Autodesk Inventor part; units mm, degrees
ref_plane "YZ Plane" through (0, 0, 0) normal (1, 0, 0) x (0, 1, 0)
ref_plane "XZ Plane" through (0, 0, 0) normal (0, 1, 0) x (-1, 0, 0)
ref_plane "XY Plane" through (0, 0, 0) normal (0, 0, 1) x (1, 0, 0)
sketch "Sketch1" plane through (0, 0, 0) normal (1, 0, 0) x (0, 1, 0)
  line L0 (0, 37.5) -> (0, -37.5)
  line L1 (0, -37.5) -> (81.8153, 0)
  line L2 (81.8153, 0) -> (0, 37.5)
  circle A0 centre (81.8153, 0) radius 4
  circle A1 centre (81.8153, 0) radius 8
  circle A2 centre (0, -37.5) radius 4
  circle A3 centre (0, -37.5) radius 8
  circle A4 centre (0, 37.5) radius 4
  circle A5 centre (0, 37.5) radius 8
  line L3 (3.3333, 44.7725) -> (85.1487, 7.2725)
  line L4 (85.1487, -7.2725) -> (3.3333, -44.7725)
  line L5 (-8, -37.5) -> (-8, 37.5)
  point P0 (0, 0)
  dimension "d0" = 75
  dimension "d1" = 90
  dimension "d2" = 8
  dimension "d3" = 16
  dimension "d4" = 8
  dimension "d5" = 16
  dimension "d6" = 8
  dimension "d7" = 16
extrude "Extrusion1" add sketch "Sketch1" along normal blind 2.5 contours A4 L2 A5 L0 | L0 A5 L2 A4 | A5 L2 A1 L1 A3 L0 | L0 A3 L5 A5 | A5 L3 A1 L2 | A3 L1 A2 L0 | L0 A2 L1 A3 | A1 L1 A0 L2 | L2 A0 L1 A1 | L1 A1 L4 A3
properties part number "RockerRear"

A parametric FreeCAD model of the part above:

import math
import FreeCAD as App
import Part
import Sketcher

V = App.Vector

doc = App.newDocument("Part")
body = doc.addObject("PartDesign::Body", "Body")

sketch1 = body.newObject("Sketcher::SketchObject", "Sketch")
sketch1.AttachmentSupport = (doc.getObject("YZ_Plane"), [""])
sketch1.MapMode = "FlatFace"
sketch1.addGeometry([
    Part.ArcOfCircle(Part.Circle(V(0, 37.5, 0), V(0, 0, 1), 8), math.radians(65.375974), math.radians(180)),
    Part.LineSegment(V(-8, 37.5, 0), V(-8, -37.5, 0)),
    Part.ArcOfCircle(Part.Circle(V(0, -37.5, 0), V(0, 0, 1), 8), math.radians(180), math.radians(294.624026)),
    Part.LineSegment(V(3.3333, -44.7725, 0), V(85.1487, -7.2725, 0)),
    Part.ArcOfCircle(Part.Circle(V(81.8153, 0, 0), V(0, 0, 1), 8), math.radians(-65.375323), math.radians(65.375323)),
    Part.LineSegment(V(85.1487, 7.2725, 0), V(3.3333, 44.7725, 0)),
    Part.Circle(V(0, 37.5, 0), V(0, 0, 1), 4),
    Part.Circle(V(81.8153, 0, 0), V(0, 0, 1), 4),
    Part.Circle(V(0, -37.5, 0), V(0, 0, 1), 4),
], False)
sketch1.addConstraint([
    Sketcher.Constraint("Tangent", 0, 2, 1, 1),
    Sketcher.Constraint("Tangent", 1, 2, 2, 1),
    Sketcher.Constraint("Tangent", 2, 2, 3, 1),
    Sketcher.Constraint("Tangent", 3, 2, 4, 1),
    Sketcher.Constraint("Tangent", 4, 2, 5, 1),
    Sketcher.Constraint("Tangent", 5, 2, 0, 1),
    Sketcher.Constraint("Vertical", 1),
    Sketcher.Constraint("Coincident", 6, 3, 0, 3),
    Sketcher.Constraint("Coincident", 7, 3, 4, 3),
    Sketcher.Constraint("Coincident", 8, 3, 2, 3),
    Sketcher.Constraint("Equal", 0, 2),
    Sketcher.Constraint("Equal", 2, 4),
    Sketcher.Constraint("Equal", 6, 7),
    Sketcher.Constraint("Equal", 7, 8),
    Sketcher.Constraint("Symmetric", 0, 3, 2, 3, -1, 1),
    Sketcher.Constraint("PointOnObject", 4, 3, -1),
    Sketcher.Constraint("Diameter", 6, 8.0),
    Sketcher.Constraint("Radius", 0, 8.0),
    Sketcher.Constraint("DistanceY", 1, 2, 1, 1, 75.0),
    Sketcher.Constraint("Distance", 3, 90.0),
])
pad1 = body.newObject("PartDesign::Pad", "Pad")
pad1.Profile = sketch1
pad1.Length = 2.5

doc.recompute()
